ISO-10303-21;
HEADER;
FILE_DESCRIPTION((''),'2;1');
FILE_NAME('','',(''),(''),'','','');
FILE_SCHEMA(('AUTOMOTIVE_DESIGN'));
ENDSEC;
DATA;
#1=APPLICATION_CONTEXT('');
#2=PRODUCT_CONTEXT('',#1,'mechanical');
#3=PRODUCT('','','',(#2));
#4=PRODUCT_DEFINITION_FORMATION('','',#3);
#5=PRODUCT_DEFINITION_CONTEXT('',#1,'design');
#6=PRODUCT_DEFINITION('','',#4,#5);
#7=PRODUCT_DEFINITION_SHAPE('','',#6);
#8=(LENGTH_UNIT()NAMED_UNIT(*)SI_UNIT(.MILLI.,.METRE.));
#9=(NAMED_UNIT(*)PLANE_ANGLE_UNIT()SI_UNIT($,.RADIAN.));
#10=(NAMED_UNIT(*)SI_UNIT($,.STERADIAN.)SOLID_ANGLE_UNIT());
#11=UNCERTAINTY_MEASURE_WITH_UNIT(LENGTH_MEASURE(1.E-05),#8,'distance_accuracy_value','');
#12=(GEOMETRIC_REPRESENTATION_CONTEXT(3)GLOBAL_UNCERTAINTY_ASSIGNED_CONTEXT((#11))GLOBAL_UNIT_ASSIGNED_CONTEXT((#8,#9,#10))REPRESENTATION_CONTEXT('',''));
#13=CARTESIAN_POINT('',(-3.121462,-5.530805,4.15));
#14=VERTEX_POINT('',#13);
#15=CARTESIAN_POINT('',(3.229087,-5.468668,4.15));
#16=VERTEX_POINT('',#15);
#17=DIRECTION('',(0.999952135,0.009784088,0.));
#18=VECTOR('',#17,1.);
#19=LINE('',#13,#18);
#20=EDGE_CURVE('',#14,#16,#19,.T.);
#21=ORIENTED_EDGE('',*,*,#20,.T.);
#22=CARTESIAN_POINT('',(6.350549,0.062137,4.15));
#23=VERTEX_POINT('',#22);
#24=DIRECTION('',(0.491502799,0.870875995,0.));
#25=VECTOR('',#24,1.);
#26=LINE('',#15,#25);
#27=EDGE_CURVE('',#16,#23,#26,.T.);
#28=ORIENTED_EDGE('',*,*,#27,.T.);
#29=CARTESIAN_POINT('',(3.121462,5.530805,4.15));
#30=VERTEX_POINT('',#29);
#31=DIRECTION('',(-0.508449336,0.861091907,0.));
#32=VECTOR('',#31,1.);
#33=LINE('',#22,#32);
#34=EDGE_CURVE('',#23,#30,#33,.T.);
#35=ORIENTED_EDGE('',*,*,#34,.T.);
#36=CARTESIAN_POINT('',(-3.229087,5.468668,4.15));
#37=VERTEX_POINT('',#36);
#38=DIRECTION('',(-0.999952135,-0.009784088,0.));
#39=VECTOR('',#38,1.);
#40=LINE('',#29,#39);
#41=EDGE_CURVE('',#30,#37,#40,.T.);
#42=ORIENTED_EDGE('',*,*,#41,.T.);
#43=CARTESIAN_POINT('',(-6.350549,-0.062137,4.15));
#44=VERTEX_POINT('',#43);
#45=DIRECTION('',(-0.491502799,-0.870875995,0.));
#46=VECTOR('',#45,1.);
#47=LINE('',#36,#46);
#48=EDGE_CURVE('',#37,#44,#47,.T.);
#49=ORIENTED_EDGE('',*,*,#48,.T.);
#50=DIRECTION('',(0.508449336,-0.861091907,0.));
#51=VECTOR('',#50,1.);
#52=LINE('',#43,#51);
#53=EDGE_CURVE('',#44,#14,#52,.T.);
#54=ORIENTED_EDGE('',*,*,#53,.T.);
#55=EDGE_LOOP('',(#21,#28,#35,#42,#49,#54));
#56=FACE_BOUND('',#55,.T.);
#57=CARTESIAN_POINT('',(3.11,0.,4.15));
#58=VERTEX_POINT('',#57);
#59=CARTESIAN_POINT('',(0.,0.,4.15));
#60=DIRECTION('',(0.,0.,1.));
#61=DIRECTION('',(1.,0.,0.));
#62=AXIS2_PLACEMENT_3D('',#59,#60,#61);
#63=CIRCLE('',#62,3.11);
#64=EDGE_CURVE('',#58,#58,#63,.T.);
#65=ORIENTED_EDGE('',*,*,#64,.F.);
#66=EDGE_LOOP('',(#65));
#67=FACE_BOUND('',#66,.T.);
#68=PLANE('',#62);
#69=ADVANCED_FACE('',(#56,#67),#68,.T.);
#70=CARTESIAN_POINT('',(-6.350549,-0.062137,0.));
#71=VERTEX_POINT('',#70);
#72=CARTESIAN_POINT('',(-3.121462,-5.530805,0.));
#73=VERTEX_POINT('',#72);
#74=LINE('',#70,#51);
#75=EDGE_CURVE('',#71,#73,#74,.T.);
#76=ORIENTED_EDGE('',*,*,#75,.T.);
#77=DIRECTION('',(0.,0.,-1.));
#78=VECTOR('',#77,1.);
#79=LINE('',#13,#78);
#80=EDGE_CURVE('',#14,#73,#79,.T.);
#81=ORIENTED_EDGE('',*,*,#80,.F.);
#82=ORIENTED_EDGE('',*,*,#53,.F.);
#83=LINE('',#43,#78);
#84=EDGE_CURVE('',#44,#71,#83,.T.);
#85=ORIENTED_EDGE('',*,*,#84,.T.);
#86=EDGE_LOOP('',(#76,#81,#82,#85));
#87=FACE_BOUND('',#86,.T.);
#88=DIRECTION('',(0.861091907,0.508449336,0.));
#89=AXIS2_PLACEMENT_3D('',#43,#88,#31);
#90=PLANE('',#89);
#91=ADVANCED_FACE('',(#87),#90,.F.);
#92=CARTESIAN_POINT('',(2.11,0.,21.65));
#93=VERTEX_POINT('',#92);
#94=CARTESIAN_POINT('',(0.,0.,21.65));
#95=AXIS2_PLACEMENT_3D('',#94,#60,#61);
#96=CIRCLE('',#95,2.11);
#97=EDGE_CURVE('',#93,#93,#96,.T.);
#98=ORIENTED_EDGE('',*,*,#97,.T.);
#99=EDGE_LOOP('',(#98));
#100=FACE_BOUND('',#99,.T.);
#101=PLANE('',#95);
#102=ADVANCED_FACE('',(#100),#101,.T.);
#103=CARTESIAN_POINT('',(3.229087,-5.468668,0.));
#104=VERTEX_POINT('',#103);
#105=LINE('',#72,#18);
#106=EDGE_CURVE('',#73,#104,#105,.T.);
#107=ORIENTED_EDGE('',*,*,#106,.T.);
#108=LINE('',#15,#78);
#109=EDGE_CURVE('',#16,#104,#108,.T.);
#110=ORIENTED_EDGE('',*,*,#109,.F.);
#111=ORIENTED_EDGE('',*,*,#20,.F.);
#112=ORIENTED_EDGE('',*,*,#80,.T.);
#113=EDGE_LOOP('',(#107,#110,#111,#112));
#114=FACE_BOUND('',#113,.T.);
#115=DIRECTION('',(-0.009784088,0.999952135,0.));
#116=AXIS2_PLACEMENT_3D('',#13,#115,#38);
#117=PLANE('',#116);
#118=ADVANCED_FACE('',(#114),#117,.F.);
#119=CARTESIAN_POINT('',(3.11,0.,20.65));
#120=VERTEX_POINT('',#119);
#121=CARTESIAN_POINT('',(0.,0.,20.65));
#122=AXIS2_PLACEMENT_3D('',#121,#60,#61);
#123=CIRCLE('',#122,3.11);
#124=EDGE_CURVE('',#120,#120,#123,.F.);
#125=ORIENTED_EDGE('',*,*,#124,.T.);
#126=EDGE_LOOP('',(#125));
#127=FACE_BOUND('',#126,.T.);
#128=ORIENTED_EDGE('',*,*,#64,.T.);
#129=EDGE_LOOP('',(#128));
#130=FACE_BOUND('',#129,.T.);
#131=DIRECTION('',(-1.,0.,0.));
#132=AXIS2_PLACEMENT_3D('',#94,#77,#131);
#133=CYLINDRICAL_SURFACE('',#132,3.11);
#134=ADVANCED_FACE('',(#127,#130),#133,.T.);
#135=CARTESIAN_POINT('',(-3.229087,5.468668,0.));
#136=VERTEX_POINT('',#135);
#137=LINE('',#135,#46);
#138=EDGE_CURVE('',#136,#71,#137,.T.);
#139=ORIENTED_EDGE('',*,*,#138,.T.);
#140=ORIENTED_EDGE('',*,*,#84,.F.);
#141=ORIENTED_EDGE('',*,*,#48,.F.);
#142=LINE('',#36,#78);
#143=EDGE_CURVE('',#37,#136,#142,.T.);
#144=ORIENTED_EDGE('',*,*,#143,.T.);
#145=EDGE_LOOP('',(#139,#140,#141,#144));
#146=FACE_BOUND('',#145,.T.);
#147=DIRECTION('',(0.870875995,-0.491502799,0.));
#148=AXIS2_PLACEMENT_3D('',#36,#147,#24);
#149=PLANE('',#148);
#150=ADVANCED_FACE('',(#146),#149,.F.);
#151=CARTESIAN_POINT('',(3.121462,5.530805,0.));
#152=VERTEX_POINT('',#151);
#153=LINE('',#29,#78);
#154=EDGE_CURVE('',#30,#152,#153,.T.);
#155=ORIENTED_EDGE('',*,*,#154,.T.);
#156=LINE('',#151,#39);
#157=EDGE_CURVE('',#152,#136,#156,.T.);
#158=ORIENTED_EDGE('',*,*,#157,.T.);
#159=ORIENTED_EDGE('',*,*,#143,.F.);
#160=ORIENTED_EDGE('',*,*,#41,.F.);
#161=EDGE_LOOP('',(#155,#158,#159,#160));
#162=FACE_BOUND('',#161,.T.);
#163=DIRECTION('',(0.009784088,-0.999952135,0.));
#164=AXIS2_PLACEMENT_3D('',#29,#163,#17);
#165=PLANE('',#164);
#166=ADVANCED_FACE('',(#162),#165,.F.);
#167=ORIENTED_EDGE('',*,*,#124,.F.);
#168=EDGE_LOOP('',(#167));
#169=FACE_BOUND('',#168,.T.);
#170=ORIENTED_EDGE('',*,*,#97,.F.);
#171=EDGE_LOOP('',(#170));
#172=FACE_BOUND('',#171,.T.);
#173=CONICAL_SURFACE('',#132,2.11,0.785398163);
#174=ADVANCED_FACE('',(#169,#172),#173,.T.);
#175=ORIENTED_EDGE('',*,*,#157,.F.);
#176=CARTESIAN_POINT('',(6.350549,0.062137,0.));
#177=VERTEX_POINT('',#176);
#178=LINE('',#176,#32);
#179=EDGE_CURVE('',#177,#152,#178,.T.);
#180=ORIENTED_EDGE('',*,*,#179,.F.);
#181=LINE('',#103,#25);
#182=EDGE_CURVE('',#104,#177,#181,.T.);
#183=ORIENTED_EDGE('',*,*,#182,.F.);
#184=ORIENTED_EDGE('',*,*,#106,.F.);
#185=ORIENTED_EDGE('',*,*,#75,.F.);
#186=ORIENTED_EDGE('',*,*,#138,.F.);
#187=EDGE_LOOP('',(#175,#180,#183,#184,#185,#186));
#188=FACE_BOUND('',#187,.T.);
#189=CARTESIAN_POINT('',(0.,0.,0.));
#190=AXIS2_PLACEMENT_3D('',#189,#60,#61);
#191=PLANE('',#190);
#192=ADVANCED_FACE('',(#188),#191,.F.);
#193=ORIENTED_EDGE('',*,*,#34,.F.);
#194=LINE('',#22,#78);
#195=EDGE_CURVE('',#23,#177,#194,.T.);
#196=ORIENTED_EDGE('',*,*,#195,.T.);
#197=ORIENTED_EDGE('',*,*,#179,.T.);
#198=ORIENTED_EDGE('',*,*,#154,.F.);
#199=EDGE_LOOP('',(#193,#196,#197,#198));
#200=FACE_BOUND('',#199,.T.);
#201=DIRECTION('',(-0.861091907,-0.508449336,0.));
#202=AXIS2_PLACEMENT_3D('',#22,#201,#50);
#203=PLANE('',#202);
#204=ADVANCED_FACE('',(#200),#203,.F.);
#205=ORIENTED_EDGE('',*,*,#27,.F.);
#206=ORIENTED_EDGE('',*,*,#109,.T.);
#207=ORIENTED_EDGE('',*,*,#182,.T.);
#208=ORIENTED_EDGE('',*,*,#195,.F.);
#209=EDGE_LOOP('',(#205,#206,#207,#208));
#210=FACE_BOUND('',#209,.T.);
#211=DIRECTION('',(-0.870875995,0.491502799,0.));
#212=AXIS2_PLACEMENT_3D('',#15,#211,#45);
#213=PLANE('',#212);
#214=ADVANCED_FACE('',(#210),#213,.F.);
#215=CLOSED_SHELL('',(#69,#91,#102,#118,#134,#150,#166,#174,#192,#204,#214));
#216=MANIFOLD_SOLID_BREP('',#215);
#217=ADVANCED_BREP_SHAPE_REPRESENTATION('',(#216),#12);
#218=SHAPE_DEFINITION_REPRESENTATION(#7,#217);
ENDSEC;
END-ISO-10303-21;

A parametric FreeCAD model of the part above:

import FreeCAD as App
import Part
import Sketcher

V = App.Vector


def edges_at(feature, points):
    """Names of the edges that pass closest to the given points."""
    edges = feature.Shape.Edges
    near = lambda p: min(range(len(edges)), key=lambda i: edges[i].distToShape(Part.Vertex(*p))[0])
    return sorted({f"Edge{near(p) + 1}" for p in points})


def add_polygon(sketch, points):
    """Adds a closed chain of lines whose ends are joined by coincident constraints."""
    first, n = sketch.GeometryCount, len(points)
    for a, b in zip(points, points[1:] + points[:1]):
        sketch.addGeometry(Part.LineSegment(App.Vector(*a, 0), App.Vector(*b, 0)), False)
    for i in range(n):
        sketch.addConstraint(Sketcher.Constraint("Coincident", first + i, 2, first + (i + 1) % n, 1))

doc = App.newDocument("Part")
body = doc.addObject("PartDesign::Body", "Body")

sketch1 = body.newObject("Sketcher::SketchObject", "Sketch")
sketch1.AttachmentSupport = (doc.getObject("XY_Plane"), [""])
sketch1.MapMode = "FlatFace"
add_polygon(sketch1, [(-3, 5), (-6, 0), (-3, -6), (3, -5), (6, 0), (3, 6)])
sketch1.addConstraint([
    Sketcher.Constraint("Symmetric", 0, 2, 3, 2, -1, 1),
    Sketcher.Constraint("Symmetric", 1, 2, 4, 2, -1, 1),
    Sketcher.Constraint("Symmetric", 2, 2, 5, 2, -1, 1),
    Sketcher.Constraint("Equal", 0, 1),
    Sketcher.Constraint("Equal", 1, 2),
    Sketcher.Constraint("DistanceX", 0, 2, -1, 1, 6.350549),
    Sketcher.Constraint("DistanceY", 2, 2, -1, 1, 5.468668),
    Sketcher.Constraint("DistanceY", 1, 2, 0, 2, 5.468668),
    Sketcher.Constraint("DistanceX", 1, 2, 2, 2, 6.350549),
])
pad1 = body.newObject("PartDesign::Pad", "Pad")
pad1.Profile = sketch1
pad1.Length = 4.15

sketch2 = body.newObject("Sketcher::SketchObject", "Sketch001")
sketch2.AttachmentSupport = (doc.getObject("XY_Plane"), [""])
sketch2.MapMode = "FlatFace"
sketch2.AttachmentOffset = App.Placement(V(0, 0, 4.15), App.Rotation())
sketch2.addGeometry(Part.Circle(V(0, 0, 0), V(0, 0, 1), 3.1), False)
sketch2.addConstraint([
    Sketcher.Constraint("Coincident", 0, 3, -1, 1),
    Sketcher.Constraint("Diameter", 0, 6.22),
])
pad2 = body.newObject("PartDesign::Pad", "Pad001")
pad2.Profile = sketch2
pad2.Length = 17.5
doc.recompute()

chamfer = body.newObject("PartDesign::Chamfer", "Chamfer")
chamfer.Base = (pad2, edges_at(pad2, [(-3.11, 0, 21.65)]))
chamfer.Size = 1

doc.recompute()
